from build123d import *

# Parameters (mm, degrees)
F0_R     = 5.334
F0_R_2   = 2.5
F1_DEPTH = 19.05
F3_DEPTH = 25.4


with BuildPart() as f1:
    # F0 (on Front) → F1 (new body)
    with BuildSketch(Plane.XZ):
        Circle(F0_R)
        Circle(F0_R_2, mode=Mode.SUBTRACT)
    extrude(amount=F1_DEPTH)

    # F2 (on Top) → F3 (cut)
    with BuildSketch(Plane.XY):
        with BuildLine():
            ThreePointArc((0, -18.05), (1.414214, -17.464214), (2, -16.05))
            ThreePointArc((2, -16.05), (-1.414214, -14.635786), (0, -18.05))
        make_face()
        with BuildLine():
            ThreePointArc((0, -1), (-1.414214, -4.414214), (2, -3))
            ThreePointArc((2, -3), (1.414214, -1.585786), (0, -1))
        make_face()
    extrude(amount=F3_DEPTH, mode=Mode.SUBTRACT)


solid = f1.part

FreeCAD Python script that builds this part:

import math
import FreeCAD as App
import Part
import Sketcher
from FreeCAD import Vector
Q = App.Units.Quantity

doc = App.newDocument("Part")
body = doc.addObject("PartDesign::Body", "Body")

# Sketch on XZ plane
sketch1 = body.newObject("Sketcher::SketchObject", "Sketch")
sketch1.AttachmentSupport = (doc.getObject("XZ_Plane"), [""])
sketch1.MapMode = "FlatFace"
sketch1.addGeometry([
    Part.Circle(Vector(0, 0, 0), Vector(0, 0, 1), 5.3),
    Part.Circle(Vector(0, 0, 0), Vector(0, 0, 1), 2.5),
], False)
sketch1.addConstraint([
    Sketcher.Constraint("Coincident", 0, 3, -1, 1),
    Sketcher.Constraint("Coincident", 1, 3, -1, 1),
    Sketcher.Constraint("Diameter", 0, Q("0.42 in")),
    Sketcher.Constraint("Diameter", 1, Q("5 mm")),
])
pad1 = body.newObject("PartDesign::Pad", "Pad")
pad1.Profile = sketch1
pad1.Length = Q("0.75 in")

# Sketch on XY plane
sketch2 = body.newObject("Sketcher::SketchObject", "Sketch001")
sketch2.AttachmentSupport = (doc.getObject("XY_Plane"), [""])
sketch2.MapMode = "FlatFace"
sketch2.addGeometry([
    Part.ArcOfCircle(Part.Circle(Vector(0, -16.1, 0), Vector(0, 0, 1), 2), math.radians(-90), math.radians(0)),
    Part.ArcOfCircle(Part.Circle(Vector(0, -16, 0), Vector(0, 0, 1), 2), math.radians(0), math.radians(270)),
    Part.ArcOfCircle(Part.Circle(Vector(0, -3, 0), Vector(0, 0, 1), 2), math.radians(90), math.radians(360)),
    Part.ArcOfCircle(Part.Circle(Vector(0, -3, 0), Vector(0, 0, 1), 2), math.radians(0), math.radians(90)),
], False)
sketch2.addConstraint([
    Sketcher.Constraint("Tangent", 0, 1, 1, 2),
    Sketcher.Constraint("Coincident", 1, 1, 0, 2),
    Sketcher.Constraint("Tangent", 2, 1, 3, 2),
    Sketcher.Constraint("Coincident", 3, 1, 2, 2),
    Sketcher.Constraint("Equal", 1, 2),
    Sketcher.Constraint("PointOnObject", 0, 3, -2),
    Sketcher.Constraint("PointOnObject", 2, 3, -2),
    Sketcher.Constraint("PointOnObject", 0, 1, -2),
    Sketcher.Constraint("PointOnObject", 2, 1, -2),
    Sketcher.Constraint("Horizontal", 0, 3, 1, 1),
    Sketcher.Constraint("Horizontal", 2, 3, 3, 1),
    Sketcher.Constraint("Radius", 0, Q("1.999999 mm")),
    Sketcher.Constraint("DistanceY", 0, 3, -1, 1, Q("16.050001 mm")),
    Sketcher.Constraint("DistanceY", 2, 3, -1, 1, Q("3 mm")),
])
pocket1 = body.newObject("PartDesign::Pocket", "Pocket")
pocket1.Profile = sketch2
pocket1.Length = Q("1 in")
pocket1.Reversed = True

doc.recompute()
